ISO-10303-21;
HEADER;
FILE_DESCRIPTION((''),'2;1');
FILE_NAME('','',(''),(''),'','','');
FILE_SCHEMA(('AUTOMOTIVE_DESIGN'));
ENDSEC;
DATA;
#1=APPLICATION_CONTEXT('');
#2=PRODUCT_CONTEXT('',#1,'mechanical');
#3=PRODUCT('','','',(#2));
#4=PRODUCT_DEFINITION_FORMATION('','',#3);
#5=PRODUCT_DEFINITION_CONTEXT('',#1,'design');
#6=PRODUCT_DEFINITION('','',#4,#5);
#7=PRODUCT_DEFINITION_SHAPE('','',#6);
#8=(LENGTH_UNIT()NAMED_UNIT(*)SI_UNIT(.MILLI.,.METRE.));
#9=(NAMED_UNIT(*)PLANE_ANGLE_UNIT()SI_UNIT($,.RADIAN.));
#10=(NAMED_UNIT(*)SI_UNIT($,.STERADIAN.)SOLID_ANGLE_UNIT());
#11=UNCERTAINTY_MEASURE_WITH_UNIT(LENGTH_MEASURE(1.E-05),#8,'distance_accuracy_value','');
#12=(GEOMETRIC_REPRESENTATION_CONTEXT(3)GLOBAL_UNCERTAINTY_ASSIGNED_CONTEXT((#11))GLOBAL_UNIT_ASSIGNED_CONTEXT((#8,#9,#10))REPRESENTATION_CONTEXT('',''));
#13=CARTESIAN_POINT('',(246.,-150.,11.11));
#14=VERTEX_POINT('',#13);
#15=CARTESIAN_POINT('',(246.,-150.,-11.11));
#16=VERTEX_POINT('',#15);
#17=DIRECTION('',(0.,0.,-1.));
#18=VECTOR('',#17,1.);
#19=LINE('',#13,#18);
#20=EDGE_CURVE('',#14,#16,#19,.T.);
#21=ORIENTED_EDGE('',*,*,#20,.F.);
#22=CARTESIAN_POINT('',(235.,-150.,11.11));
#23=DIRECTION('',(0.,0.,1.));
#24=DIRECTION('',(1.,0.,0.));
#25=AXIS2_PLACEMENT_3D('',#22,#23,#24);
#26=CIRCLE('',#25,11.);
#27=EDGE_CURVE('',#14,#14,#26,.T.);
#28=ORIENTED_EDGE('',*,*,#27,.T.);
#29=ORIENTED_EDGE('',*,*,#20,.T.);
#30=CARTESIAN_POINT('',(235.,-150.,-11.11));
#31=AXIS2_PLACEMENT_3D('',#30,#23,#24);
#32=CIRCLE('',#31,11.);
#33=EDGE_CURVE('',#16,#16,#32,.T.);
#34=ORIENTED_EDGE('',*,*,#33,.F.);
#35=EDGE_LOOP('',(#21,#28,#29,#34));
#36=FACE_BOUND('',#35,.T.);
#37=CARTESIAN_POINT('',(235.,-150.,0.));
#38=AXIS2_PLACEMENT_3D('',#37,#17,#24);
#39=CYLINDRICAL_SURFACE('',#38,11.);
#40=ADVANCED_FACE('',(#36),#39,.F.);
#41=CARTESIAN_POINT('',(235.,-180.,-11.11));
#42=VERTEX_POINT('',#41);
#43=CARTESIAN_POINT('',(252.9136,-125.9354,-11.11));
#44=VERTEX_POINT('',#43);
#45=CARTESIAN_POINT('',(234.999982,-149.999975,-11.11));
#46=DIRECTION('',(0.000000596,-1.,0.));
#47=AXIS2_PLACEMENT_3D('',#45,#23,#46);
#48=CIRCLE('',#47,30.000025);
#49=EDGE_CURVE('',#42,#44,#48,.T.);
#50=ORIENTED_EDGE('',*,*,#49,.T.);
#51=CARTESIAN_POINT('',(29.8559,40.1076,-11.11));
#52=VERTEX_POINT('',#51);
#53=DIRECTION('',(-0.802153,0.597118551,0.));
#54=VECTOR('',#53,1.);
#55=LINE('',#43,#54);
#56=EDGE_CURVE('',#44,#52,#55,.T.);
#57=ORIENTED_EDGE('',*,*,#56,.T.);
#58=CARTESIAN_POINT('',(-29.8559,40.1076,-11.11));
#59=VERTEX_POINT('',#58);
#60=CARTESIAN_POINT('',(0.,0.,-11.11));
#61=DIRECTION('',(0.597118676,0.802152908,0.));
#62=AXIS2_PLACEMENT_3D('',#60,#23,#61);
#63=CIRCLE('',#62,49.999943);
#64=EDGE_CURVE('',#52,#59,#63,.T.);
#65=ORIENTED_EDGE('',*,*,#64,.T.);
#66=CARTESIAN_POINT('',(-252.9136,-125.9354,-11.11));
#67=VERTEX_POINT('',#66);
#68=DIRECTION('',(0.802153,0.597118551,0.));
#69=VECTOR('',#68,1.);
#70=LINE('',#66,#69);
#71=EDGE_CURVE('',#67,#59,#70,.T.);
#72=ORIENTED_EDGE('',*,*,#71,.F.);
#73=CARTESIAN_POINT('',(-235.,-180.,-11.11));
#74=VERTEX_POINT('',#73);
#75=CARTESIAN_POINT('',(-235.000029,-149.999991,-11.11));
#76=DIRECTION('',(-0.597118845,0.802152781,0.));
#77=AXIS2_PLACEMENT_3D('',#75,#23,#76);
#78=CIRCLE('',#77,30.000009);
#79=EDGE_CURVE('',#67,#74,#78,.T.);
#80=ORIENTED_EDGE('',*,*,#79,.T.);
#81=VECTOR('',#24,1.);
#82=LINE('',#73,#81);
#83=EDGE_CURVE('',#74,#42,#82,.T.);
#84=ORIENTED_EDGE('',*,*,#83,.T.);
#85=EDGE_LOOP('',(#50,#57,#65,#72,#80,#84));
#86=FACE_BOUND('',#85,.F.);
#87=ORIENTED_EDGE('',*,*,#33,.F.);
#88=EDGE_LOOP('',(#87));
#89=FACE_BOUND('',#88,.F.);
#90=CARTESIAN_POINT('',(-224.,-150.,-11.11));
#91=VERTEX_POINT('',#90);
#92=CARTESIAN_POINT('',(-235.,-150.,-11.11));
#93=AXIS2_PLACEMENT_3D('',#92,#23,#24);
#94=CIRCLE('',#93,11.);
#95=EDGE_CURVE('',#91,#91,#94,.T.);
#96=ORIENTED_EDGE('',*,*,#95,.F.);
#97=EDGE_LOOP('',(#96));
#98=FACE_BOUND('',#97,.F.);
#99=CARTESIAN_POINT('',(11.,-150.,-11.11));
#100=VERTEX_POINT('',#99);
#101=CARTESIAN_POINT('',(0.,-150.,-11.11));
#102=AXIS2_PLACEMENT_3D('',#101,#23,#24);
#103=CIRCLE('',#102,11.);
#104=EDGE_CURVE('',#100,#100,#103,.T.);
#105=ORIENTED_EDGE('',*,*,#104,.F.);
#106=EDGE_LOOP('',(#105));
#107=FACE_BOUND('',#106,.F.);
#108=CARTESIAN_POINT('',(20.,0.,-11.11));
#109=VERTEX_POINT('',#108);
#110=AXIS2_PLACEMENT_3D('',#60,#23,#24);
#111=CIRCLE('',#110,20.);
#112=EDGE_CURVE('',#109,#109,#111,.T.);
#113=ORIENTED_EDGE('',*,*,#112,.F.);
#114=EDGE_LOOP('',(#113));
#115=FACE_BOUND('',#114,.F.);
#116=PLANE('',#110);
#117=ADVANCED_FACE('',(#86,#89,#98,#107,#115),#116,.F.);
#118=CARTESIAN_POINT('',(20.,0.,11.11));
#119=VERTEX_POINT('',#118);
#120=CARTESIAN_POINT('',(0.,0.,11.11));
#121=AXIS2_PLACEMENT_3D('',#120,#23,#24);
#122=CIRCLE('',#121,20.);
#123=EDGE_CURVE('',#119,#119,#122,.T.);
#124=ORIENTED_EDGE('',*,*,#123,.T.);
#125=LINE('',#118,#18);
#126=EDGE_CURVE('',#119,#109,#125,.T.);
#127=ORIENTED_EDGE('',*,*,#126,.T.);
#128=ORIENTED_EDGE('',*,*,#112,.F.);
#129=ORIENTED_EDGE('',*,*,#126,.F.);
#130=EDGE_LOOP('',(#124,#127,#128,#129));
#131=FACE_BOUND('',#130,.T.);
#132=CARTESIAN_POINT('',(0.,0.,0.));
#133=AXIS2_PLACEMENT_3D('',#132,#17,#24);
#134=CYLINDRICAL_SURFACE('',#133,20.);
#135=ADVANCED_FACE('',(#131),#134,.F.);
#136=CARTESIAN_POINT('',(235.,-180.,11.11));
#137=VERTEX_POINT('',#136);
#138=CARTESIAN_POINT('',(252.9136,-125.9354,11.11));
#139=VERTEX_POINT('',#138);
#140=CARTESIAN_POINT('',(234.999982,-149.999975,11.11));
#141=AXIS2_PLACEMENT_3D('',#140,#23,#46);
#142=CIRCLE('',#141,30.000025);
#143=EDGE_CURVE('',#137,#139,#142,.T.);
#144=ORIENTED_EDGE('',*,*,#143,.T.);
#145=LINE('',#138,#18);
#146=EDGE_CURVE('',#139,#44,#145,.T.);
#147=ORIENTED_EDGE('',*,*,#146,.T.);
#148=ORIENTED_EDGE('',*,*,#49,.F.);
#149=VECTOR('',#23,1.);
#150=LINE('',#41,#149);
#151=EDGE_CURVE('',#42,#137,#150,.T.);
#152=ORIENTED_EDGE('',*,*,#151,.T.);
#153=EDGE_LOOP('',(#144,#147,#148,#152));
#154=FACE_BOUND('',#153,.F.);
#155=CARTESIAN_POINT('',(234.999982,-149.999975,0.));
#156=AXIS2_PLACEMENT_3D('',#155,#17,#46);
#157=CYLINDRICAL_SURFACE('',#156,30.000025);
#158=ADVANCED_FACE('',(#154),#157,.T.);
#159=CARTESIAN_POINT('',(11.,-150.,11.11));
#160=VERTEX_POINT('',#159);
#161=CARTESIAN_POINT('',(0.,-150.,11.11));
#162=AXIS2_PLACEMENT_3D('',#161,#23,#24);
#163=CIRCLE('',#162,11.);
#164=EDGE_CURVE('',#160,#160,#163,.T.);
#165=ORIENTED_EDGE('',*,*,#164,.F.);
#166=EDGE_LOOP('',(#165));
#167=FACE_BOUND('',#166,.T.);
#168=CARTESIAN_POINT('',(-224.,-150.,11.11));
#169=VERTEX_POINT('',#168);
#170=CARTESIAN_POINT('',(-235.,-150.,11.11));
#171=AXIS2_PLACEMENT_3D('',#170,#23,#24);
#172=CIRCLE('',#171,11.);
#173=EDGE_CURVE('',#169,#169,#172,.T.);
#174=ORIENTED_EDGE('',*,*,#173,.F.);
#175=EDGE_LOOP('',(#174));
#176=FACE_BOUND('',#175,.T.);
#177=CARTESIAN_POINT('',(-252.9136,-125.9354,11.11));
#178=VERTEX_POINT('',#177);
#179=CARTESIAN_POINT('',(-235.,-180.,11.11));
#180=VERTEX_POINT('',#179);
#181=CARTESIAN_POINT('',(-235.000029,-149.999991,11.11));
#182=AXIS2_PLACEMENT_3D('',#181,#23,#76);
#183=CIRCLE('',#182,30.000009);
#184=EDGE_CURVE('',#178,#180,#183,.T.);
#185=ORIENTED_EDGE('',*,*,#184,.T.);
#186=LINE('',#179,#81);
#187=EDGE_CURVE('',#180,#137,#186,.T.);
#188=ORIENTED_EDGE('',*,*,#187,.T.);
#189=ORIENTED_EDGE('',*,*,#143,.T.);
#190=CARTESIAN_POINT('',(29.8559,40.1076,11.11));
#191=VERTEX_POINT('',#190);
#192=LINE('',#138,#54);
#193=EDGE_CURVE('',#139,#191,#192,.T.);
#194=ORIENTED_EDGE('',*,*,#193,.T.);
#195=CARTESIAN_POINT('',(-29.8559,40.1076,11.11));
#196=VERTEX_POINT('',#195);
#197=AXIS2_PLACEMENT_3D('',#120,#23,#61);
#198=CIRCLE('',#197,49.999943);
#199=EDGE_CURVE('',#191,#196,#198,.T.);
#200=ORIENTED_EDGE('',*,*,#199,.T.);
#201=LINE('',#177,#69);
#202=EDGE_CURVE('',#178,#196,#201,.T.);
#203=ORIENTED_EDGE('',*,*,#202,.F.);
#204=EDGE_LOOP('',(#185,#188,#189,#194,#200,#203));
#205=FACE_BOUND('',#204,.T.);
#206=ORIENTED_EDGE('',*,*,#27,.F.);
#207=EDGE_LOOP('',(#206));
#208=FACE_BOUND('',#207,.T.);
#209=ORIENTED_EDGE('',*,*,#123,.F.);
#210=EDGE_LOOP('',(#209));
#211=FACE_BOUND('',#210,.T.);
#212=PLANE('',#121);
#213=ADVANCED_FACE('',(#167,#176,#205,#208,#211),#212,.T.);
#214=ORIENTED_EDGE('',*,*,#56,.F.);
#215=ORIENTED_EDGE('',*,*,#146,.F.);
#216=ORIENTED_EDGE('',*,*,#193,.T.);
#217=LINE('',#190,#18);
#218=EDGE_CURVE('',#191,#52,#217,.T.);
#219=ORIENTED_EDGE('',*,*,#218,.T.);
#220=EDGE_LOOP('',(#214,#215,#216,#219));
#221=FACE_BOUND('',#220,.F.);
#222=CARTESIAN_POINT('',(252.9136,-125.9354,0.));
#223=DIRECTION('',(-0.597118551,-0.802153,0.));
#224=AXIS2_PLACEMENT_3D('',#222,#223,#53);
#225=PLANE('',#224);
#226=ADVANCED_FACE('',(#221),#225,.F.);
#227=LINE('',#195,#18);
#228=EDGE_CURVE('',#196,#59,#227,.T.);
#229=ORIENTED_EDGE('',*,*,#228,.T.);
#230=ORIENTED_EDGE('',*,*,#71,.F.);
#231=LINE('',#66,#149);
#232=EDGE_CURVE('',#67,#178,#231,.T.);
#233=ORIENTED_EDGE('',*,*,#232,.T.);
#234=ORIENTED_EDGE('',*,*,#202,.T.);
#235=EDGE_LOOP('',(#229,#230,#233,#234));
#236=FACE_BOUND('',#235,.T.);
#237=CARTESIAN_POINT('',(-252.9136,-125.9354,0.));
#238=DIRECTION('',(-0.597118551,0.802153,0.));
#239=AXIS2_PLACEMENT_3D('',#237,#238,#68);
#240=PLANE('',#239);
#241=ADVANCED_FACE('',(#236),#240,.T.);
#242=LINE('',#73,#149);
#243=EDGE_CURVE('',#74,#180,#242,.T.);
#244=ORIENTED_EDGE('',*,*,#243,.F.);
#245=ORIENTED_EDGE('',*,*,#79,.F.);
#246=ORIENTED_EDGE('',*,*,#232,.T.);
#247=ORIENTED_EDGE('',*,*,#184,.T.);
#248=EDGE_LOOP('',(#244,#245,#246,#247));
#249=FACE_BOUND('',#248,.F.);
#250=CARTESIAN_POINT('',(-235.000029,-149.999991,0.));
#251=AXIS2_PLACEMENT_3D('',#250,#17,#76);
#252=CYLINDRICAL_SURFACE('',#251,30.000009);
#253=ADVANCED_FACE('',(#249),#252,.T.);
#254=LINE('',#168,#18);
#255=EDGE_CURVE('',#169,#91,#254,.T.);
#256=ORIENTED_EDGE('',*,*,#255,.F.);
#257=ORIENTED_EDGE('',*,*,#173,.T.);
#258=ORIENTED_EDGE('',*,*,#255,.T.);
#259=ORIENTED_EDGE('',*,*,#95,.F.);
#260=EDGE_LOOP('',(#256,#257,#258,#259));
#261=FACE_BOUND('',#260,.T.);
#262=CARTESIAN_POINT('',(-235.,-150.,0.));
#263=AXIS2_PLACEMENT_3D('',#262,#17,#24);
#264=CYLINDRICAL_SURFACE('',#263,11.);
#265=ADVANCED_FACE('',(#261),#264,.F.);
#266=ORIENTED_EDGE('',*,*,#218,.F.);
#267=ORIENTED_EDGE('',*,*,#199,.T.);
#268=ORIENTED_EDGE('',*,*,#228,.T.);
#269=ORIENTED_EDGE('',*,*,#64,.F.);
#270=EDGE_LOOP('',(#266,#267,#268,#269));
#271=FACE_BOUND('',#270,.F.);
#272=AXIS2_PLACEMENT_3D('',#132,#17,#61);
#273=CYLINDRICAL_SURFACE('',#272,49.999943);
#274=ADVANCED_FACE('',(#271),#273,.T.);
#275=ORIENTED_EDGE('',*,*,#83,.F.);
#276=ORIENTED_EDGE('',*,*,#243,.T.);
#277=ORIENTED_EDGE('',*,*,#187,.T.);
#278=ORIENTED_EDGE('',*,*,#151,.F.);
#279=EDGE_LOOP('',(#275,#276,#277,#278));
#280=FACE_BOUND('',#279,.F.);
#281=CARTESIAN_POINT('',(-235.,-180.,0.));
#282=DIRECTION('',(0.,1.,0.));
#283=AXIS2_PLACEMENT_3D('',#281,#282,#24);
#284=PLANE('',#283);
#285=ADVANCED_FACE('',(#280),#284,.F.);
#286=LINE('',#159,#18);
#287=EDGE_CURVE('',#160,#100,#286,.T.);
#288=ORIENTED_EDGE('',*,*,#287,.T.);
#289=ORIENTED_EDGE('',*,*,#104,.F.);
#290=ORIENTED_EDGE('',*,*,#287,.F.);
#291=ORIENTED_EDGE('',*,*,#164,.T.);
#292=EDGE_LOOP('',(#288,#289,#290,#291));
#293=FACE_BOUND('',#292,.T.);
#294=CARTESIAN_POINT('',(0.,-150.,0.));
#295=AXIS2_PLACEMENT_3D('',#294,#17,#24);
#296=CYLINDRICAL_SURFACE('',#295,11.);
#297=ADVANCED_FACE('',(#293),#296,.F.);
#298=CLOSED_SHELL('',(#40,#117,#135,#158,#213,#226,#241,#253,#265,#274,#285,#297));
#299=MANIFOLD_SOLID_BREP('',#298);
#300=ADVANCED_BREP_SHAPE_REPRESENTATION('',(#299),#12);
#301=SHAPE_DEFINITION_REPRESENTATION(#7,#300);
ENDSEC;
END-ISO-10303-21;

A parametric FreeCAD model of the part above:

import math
import FreeCAD as App
import Part
import Sketcher

V = App.Vector
Q = App.Units.Quantity

doc = App.newDocument("Part")
body = doc.addObject("PartDesign::Body", "Body")

# Sketch on XY plane
sketch1 = body.newObject("Sketcher::SketchObject", "Sketch")
sketch1.AttachmentSupport = (doc.getObject("XY_Plane"), [""])
sketch1.MapMode = "FlatFace"
sketch1.addGeometry([
    Part.LineSegment(V(-30, 40, 0), V(-253, -126, 0)),  # 0
    Part.ArcOfCircle(Part.Circle(V(-235, -150, 0), V(0, 0, 1), 30), math.radians(127), math.radians(270)),  # 1
    Part.LineSegment(V(-235, -180, 0), V(235, -180, 0)),  # 2
    Part.ArcOfCircle(Part.Circle(V(235, -150, 0), V(0, 0, 1), 30), math.radians(-90), math.radians(53)),  # 3
    Part.LineSegment(V(253, -126, 0), V(30, 40, 0)),  # 4
    Part.ArcOfCircle(Part.Circle(V(0, 0, 0), V(0, 0, 1), 50), math.radians(53), math.radians(127)),  # 5
    Part.Circle(V(-235, -150, 0), V(0, 0, 1), 11),  # 6
    Part.Circle(V(0, -150, 0), V(0, 0, 1), 11),  # 7
    Part.Circle(V(235, -150, 0), V(0, 0, 1), 11),  # 8
    Part.Circle(V(0, 0, 0), V(0, 0, 1), 20),  # 9
], False)
sketch1.addConstraint([
    Sketcher.Constraint("Tangent", 0, 2, 1, 1),
    Sketcher.Constraint("Tangent", 1, 2, 2, 1),
    Sketcher.Constraint("Tangent", 2, 2, 3, 1),
    Sketcher.Constraint("Tangent", 3, 2, 4, 1),
    Sketcher.Constraint("Tangent", 4, 2, 5, 1),
    Sketcher.Constraint("Tangent", 5, 2, 0, 1),
    Sketcher.Constraint("Horizontal", 2),
    Sketcher.Constraint("Coincident", 5, 3, -1, 1),
    Sketcher.Constraint("Coincident", 9, 3, -1, 1),
    Sketcher.Constraint("Coincident", 6, 3, 1, 3),
    Sketcher.Constraint("Coincident", 8, 3, 3, 3),
    Sketcher.Constraint("Equal", 1, 3),
    Sketcher.Constraint("Equal", 6, 7),
    Sketcher.Constraint("Equal", 7, 8),
    Sketcher.Constraint("PointOnObject", 7, 3, -2),
    Sketcher.Constraint("Horizontal", 6, 3, 7, 3),
    Sketcher.Constraint("Equal", 0, 4),
    Sketcher.Constraint("Diameter", 6, Q("22 mm")),
    Sketcher.Constraint("Diameter", 9, Q("40 mm")),
    Sketcher.Constraint("Radius", 1, Q("30 mm")),
    Sketcher.Constraint("Radius", 5, Q("50 mm")),
    Sketcher.Constraint("DistanceX", 2, 1, 2, 2, Q("470 mm")),
    Sketcher.Constraint("DistanceY", 1, 3, -1, 1, Q("150 mm")),
])
pad1 = body.newObject("PartDesign::Pad", "Pad")
pad1.Profile = sketch1
pad1.Length = 22.22
pad1.Midplane = True

doc.recompute()
